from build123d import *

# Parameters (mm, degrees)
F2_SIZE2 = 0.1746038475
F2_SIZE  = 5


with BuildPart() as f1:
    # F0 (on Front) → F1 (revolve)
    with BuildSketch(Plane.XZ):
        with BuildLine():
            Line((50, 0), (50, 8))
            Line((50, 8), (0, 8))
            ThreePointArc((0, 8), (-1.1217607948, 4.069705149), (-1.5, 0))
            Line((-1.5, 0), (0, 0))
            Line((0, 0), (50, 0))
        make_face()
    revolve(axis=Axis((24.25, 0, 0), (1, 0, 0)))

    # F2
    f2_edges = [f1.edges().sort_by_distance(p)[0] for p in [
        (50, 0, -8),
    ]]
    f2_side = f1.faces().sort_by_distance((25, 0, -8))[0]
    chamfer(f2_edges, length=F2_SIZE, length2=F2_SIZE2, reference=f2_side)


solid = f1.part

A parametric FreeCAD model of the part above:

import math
import FreeCAD as App
import Part
import Sketcher

V = App.Vector
Q = App.Units.Quantity


def edges_at(feature, points):
    """Names of the edges that pass closest to the given points."""
    edges = feature.Shape.Edges
    near = lambda p: min(range(len(edges)), key=lambda i: edges[i].distToShape(Part.Vertex(*p))[0])
    return sorted({f"Edge{near(p) + 1}" for p in points})

doc = App.newDocument("Part")
params = doc.addObject("Spreadsheet::Sheet", "Params")
for row, (alias, value) in enumerate([
    ("sketch1_width", "50 mm"),
    ("sketch1_height", "8 mm"),
    ("sketch1_width2", "51.5 mm"),
    ("revolution_angle", "360 deg"),
    ("chamfer_size", "5 mm"),
    ("chamfer_size2", "0.174604 mm"),
], start=1):
    params.set(f"A{row}", alias)
    params.set(f"B{row}", "=" + value)
    params.setAlias(f"B{row}", alias)

body = doc.addObject("PartDesign::Body", "Body")

# Sketch on XZ plane
sketch1 = body.newObject("Sketcher::SketchObject", "Sketch")
sketch1.AttachmentSupport = (doc.getObject("XZ_Plane"), [""])
sketch1.MapMode = "FlatFace"
sketch1.addGeometry(Part.LineSegment(V(50, 0, 0), V(50, 8, 0)), False)
sketch1.addGeometry(Part.LineSegment(V(50, 8, 0), V(0, 8, 0)), False)
sketch1.addGeometry(Part.ArcOfCircle(Part.Circle(V(21, 0, 0), V(0, 0, 1), 22), math.radians(159), math.radians(180)), False)
sketch1.addGeometry(Part.LineSegment(V(-2, 0, 0), V(50, 0, 0)), False)
sketch1.addConstraint(Sketcher.Constraint("Coincident", 0, 2, 1, 1))
sketch1.addConstraint(Sketcher.Constraint("Coincident", 1, 2, 2, 1))
sketch1.addConstraint(Sketcher.Constraint("Coincident", 2, 2, 3, 1))
sketch1.addConstraint(Sketcher.Constraint("Coincident", 3, 2, 0, 1))
sketch1.addConstraint(Sketcher.Constraint("Vertical", 0))
sketch1.addConstraint(Sketcher.Constraint("Horizontal", 1))
sketch1.addConstraint(Sketcher.Constraint("Horizontal", 3))
sketch1.addConstraint(Sketcher.Constraint("PointOnObject", 2, 3, -1))
sketch1.addConstraint(Sketcher.Constraint("PointOnObject", 1, 2, -2))
sketch1.addConstraint(Sketcher.Constraint("PointOnObject", 2, 2, -1))
sketch1.addConstraint(Sketcher.Constraint("DistanceX", 1, 2, 1, 1, Q("50 mm")))
sketch1.addConstraint(Sketcher.Constraint("DistanceY", 0, 1, 0, 2, Q("8 mm")))
sketch1.addConstraint(Sketcher.Constraint("DistanceX", 3, 1, 3, 2, Q("51.5 mm")))
sketch1.setExpression("Constraints[10]", "Params.sketch1_width")
sketch1.setExpression("Constraints[11]", "Params.sketch1_height")
sketch1.setExpression("Constraints[12]", "Params.sketch1_width2")
revolution = body.newObject("PartDesign::Revolution", "Revolution")
revolution.Profile = sketch1
revolution.ReferenceAxis = (sketch1, ["H_Axis"])
revolution.setExpression("Angle", "Params.revolution_angle")
doc.recompute()

chamfer = body.newObject("PartDesign::Chamfer", "Chamfer")
chamfer.Base = (revolution, edges_at(revolution, [(50, 0, -8)]))
chamfer.ChamferType = "Two distances"
chamfer.setExpression("Size", "Params.chamfer_size")
chamfer.setExpression("Size2", "Params.chamfer_size2")
chamfer.FlipDirection = True

doc.recompute()
